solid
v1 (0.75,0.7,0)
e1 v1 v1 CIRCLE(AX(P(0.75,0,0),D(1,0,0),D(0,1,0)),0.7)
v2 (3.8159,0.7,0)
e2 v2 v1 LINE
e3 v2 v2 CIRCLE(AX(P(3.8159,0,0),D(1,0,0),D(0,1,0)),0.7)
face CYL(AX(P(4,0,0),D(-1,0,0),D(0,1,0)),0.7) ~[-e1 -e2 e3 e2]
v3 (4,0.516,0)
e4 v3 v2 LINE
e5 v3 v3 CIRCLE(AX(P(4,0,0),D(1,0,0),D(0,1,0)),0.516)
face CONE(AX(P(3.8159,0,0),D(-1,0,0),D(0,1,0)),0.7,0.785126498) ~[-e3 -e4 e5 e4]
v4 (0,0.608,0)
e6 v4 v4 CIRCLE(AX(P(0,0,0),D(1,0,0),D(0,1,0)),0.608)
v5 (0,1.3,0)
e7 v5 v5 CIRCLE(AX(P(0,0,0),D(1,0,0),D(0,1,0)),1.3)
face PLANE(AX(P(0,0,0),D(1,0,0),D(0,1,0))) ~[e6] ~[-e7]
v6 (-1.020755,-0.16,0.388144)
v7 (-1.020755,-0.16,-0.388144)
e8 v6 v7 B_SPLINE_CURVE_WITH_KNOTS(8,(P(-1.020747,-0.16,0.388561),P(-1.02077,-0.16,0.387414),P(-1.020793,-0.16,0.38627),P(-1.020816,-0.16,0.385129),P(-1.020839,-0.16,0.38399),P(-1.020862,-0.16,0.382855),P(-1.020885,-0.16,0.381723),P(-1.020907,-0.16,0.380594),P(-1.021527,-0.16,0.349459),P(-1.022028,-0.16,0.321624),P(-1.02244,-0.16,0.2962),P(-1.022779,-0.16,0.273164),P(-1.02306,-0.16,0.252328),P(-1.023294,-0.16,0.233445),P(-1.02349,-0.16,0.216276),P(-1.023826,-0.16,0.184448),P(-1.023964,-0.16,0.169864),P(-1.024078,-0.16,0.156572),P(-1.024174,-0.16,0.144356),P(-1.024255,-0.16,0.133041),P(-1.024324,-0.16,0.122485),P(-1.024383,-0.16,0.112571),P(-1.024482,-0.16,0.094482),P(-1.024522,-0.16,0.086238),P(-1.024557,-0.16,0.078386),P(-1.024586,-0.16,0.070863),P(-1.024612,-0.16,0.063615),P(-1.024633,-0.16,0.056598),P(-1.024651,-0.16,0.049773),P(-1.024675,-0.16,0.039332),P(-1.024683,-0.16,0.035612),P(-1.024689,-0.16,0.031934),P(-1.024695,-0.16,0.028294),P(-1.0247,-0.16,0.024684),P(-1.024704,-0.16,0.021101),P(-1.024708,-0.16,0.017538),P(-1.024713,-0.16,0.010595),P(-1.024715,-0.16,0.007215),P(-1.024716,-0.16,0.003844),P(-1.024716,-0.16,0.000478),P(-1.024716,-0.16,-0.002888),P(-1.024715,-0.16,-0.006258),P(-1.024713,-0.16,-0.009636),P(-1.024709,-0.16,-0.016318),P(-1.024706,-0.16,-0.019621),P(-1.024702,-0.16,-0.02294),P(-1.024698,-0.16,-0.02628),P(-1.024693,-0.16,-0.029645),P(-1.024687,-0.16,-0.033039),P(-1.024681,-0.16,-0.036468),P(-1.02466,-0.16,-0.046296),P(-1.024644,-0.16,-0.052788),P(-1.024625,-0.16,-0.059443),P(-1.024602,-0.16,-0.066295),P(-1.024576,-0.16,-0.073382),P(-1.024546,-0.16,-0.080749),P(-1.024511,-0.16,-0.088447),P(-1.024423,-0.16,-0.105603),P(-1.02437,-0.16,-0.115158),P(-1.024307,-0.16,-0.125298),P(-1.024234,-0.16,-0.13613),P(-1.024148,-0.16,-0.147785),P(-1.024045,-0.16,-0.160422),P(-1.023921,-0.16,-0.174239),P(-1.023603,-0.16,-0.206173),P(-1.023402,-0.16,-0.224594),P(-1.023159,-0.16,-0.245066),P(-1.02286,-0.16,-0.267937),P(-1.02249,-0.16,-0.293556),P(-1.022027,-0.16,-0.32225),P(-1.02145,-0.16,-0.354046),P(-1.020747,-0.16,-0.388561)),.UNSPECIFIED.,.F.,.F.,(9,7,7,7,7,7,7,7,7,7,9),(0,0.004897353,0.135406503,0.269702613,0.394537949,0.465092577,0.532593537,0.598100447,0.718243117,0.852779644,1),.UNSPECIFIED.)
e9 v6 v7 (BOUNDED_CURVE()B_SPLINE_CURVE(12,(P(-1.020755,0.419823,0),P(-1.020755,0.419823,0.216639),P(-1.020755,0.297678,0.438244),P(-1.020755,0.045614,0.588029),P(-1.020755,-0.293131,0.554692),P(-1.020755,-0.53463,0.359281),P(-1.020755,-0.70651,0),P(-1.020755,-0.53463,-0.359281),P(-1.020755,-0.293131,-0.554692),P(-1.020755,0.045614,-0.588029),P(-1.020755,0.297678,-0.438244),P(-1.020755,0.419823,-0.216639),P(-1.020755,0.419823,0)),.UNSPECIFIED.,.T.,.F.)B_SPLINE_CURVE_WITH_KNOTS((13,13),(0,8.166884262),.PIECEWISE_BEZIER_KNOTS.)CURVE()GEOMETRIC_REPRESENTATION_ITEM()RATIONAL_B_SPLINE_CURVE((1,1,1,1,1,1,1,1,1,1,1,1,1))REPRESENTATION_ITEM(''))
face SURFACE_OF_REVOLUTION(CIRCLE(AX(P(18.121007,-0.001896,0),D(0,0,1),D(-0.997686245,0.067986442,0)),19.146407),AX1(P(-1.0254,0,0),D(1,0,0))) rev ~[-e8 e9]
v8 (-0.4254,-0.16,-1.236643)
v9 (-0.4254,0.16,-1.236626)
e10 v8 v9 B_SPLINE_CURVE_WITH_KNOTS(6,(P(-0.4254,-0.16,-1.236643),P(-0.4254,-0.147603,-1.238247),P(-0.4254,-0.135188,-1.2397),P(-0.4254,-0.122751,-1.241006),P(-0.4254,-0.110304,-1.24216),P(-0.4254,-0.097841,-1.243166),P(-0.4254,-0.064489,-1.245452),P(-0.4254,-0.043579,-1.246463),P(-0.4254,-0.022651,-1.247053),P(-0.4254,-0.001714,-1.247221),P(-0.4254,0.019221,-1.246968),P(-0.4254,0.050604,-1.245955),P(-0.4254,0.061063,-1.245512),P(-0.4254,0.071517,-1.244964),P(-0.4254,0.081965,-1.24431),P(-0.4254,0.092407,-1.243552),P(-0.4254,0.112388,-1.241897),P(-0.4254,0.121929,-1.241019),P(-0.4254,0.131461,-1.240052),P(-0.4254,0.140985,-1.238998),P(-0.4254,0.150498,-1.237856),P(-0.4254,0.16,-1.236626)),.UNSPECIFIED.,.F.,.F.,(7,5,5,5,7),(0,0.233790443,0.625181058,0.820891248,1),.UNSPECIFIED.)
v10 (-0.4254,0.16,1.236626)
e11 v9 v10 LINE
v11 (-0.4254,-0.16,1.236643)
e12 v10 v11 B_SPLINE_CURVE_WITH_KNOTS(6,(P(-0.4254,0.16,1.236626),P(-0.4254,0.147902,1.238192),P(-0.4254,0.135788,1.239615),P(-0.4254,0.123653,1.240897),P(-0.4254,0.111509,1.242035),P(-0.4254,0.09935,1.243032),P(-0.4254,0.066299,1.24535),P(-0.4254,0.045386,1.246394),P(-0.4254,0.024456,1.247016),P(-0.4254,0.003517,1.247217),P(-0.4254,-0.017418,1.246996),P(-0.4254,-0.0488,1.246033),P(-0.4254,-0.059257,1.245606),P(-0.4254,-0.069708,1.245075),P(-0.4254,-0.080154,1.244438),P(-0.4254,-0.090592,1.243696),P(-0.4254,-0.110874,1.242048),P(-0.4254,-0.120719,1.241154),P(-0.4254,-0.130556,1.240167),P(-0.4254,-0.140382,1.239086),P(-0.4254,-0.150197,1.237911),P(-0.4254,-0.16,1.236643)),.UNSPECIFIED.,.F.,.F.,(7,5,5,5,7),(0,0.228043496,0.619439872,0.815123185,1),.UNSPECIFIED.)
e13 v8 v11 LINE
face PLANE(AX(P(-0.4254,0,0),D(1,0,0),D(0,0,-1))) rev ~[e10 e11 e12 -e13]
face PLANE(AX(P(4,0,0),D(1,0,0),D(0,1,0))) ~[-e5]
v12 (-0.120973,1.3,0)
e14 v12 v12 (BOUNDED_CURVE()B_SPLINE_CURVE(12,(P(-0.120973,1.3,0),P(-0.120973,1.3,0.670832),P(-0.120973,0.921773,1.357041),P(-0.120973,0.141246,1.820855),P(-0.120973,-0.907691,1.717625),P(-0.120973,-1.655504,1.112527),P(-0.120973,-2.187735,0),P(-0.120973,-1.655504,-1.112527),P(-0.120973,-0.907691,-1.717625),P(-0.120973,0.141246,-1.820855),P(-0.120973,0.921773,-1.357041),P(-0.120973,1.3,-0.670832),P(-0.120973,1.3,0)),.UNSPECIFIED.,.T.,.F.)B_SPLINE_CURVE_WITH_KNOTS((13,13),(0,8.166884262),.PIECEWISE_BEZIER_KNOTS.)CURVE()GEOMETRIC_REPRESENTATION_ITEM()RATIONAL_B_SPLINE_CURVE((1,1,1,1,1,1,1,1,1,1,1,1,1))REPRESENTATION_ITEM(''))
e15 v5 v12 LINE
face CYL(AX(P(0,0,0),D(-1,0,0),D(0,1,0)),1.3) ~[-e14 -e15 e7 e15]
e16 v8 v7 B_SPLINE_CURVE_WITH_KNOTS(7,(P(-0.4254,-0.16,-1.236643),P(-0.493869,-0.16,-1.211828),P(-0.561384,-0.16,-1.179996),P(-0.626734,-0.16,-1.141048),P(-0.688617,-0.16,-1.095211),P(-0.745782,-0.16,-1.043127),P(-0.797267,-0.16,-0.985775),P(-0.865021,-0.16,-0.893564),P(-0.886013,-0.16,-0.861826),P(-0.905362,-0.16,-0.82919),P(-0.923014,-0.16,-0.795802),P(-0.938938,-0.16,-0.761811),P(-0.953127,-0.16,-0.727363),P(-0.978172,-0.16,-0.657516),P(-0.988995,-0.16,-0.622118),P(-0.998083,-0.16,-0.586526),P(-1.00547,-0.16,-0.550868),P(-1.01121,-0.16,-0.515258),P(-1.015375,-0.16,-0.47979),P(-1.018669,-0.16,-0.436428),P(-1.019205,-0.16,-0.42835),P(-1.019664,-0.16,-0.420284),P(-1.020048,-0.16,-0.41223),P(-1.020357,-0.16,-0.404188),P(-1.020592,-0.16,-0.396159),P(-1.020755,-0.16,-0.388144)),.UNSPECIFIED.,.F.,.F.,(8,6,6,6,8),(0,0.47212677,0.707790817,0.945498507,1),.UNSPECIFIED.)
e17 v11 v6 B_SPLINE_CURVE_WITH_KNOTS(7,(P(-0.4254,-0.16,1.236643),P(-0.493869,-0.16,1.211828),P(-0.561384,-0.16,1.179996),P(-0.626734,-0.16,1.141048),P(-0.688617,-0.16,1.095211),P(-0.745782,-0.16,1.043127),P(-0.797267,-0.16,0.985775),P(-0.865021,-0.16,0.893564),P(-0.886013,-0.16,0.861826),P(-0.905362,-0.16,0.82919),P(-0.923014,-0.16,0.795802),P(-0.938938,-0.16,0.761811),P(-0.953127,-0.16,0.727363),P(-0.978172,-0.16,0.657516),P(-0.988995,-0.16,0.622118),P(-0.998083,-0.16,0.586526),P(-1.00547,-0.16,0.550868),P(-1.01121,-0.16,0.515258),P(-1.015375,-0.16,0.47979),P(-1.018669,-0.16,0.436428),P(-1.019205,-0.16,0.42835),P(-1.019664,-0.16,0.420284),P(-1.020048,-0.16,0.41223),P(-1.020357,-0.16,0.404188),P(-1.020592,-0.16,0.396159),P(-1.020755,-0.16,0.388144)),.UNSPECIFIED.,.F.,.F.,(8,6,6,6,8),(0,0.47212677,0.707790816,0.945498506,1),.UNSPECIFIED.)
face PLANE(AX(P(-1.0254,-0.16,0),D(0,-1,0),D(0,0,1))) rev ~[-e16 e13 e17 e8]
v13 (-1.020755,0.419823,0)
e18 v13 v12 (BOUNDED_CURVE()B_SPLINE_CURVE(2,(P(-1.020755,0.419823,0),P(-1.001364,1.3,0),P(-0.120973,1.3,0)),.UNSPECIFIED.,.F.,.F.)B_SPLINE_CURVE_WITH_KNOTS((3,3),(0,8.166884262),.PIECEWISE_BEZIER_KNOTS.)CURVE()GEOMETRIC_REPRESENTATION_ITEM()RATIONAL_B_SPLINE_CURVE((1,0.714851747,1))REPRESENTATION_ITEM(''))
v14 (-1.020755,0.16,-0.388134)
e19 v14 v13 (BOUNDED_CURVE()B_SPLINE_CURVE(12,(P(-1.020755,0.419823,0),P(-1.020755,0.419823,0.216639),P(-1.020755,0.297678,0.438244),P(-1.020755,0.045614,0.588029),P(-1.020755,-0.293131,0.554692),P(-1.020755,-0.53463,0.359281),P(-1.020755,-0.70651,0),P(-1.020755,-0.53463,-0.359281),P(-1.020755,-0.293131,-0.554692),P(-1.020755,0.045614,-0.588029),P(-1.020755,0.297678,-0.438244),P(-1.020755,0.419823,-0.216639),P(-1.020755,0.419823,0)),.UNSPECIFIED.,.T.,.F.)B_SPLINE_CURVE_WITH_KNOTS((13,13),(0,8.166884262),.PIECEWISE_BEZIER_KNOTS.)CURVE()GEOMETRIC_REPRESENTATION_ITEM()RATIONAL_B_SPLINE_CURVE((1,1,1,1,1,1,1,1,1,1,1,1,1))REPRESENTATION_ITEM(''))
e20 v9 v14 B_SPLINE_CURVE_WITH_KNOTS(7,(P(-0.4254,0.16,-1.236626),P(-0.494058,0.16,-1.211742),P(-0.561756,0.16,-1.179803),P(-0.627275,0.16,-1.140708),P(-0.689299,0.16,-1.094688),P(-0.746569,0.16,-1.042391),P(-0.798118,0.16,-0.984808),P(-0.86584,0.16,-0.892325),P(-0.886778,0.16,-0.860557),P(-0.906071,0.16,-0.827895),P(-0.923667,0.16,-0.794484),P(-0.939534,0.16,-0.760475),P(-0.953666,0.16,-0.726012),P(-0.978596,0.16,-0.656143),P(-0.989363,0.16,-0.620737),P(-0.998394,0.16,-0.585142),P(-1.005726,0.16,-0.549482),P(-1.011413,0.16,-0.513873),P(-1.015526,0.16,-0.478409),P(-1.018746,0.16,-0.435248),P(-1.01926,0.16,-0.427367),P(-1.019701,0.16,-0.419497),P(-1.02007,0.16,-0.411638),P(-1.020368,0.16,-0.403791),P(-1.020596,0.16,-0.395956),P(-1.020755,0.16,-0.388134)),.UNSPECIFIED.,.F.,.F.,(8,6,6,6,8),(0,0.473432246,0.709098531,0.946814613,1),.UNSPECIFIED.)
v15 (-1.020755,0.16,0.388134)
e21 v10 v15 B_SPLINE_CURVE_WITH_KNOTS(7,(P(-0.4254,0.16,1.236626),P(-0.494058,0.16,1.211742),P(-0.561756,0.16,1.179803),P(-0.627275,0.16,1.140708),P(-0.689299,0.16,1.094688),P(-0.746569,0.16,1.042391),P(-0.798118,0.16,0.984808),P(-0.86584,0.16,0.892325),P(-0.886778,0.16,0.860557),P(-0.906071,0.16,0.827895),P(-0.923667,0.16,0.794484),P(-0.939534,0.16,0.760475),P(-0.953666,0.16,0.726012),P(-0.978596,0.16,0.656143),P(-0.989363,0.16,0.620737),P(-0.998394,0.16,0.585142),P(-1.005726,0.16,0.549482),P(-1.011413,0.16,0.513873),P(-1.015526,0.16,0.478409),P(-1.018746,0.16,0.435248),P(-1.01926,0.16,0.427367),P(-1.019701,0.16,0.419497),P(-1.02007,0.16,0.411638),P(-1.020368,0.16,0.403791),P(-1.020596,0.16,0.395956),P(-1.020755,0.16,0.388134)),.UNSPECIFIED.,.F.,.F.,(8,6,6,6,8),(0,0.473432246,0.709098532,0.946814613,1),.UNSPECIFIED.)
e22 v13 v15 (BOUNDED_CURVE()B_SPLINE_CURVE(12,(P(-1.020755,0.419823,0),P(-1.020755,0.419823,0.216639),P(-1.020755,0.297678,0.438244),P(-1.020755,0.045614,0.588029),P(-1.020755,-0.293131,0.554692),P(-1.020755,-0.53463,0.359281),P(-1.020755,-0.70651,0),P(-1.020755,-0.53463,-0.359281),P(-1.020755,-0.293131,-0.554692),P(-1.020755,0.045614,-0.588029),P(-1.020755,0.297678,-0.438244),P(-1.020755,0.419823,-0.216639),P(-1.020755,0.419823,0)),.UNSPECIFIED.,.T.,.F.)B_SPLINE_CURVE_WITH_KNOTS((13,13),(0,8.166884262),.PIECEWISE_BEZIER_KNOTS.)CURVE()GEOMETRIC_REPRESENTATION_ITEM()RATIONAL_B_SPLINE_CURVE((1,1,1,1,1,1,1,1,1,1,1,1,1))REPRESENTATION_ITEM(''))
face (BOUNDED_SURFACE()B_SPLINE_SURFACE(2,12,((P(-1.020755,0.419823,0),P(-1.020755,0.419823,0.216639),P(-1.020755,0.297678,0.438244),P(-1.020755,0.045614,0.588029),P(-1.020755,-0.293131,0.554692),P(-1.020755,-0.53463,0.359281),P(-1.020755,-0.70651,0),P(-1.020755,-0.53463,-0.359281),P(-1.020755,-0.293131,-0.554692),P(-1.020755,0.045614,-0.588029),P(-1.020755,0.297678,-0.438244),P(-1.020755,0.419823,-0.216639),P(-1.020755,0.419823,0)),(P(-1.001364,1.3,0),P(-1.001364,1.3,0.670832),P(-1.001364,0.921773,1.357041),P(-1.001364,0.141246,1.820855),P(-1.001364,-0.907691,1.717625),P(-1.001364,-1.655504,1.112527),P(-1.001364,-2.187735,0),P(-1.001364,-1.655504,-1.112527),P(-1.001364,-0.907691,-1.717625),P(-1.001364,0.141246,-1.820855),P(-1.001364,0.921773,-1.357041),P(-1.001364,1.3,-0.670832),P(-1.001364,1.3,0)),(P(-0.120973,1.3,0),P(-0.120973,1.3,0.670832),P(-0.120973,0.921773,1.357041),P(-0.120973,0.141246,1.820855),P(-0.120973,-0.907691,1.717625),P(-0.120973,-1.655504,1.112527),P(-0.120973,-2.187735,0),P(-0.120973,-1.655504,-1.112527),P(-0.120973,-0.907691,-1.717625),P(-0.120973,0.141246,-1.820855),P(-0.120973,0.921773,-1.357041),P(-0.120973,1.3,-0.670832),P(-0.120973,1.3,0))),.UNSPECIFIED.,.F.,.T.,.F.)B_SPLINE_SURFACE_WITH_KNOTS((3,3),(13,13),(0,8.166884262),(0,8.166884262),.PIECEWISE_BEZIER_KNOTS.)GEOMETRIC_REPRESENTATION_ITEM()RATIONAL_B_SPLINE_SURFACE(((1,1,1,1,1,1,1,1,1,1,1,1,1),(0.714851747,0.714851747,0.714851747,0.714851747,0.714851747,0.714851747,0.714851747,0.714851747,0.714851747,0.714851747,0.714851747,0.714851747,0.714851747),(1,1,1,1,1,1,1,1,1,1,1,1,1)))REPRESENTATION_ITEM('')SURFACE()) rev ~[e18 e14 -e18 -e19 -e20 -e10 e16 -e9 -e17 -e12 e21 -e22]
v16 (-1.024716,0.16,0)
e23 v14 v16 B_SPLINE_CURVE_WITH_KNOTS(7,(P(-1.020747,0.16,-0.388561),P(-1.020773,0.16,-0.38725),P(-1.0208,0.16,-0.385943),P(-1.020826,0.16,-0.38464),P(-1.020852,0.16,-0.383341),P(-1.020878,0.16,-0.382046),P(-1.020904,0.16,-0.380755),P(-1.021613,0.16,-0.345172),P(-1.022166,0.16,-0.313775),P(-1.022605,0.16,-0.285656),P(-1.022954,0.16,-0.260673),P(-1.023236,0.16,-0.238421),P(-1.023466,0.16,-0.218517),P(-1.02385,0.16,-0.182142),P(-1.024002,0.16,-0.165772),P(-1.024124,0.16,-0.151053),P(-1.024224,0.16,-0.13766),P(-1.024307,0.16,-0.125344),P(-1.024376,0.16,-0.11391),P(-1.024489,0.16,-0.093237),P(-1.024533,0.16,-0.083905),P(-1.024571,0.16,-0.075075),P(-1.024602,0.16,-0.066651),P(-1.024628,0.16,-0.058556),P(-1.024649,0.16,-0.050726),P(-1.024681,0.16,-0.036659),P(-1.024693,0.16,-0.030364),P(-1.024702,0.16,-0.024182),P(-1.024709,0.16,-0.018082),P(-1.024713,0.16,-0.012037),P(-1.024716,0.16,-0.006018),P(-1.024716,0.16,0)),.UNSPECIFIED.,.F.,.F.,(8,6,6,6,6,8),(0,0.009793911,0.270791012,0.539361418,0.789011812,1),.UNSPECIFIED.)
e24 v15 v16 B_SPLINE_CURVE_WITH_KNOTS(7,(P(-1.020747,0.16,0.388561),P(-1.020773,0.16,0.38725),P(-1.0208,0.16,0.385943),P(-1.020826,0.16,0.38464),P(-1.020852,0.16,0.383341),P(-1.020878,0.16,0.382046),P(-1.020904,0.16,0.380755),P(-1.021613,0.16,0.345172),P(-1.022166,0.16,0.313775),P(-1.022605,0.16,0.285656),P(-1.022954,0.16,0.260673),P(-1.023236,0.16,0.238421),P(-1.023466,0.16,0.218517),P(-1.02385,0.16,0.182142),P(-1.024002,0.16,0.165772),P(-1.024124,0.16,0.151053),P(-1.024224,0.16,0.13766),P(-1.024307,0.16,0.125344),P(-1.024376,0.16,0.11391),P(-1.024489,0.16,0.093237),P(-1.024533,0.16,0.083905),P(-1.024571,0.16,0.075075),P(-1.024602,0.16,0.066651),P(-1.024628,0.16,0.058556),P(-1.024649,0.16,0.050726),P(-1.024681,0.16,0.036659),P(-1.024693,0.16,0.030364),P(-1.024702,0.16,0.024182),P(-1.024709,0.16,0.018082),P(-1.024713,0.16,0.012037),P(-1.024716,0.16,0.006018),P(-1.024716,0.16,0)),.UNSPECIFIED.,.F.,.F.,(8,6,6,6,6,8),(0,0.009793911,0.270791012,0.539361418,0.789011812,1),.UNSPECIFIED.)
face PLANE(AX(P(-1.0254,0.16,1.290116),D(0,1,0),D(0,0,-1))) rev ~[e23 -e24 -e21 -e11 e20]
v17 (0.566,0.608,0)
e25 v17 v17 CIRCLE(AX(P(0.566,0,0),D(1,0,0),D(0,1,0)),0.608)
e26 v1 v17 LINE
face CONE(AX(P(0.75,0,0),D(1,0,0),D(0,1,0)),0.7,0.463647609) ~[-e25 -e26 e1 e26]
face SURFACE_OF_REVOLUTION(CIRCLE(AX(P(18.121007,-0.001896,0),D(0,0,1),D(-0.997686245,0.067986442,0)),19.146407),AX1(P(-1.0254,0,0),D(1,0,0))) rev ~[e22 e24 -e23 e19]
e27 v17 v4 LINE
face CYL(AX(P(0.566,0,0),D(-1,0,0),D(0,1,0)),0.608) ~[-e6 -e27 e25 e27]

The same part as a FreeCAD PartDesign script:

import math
import FreeCAD as App
import Part
import Sketcher


def edges_at(feature, points):
    """Names of the edges that pass closest to the given points."""
    edges = feature.Shape.Edges
    near = lambda p: min(range(len(edges)), key=lambda i: edges[i].distToShape(Part.Vertex(*p))[0])
    return sorted({f"Edge{near(p) + 1}" for p in points})

doc = App.newDocument("Part")
body = doc.addObject("PartDesign::Body", "Body")

# Sketch on XY plane
sketch1 = body.newObject("Sketcher::SketchObject", "Sketch")
sketch1.AttachmentSupport = (doc.getObject("XY_Plane"), [""])
sketch1.MapMode = "FlatFace"
sketch1.addGeometry([
    Part.ArcOfCircle(Part.Circle(App.Vector(18.12, 0, 0), App.Vector(0, 0, 1), 19.15), math.radians(176.1), math.radians(179.99)),  # 0
    Part.LineSegment(App.Vector(-1.03, 0, 0), App.Vector(4, 0, 0)),  # 1
    Part.LineSegment(App.Vector(4, 0, 0), App.Vector(4, 0.7, 0)),  # 2
    Part.LineSegment(App.Vector(4, 0.7, 0), App.Vector(0.75, 0.7, 0)),  # 3
    Part.LineSegment(App.Vector(0.75, 0.7, 0), App.Vector(0.57, 0.61, 0)),  # 4
    Part.LineSegment(App.Vector(0.57, 0.61, 0), App.Vector(0, 0.61, 0)),  # 5
    Part.LineSegment(App.Vector(0, 0.61, 0), App.Vector(0, 1.3, 0)),  # 6
    Part.LineSegment(App.Vector(0, 1.3, 0), App.Vector(-0.98, 1.3, 0)),  # 7
], False)
sketch1.addConstraint([
    Sketcher.Constraint("Coincident", 0, 2, 1, 1),
    Sketcher.Constraint("Coincident", 1, 2, 2, 1),
    Sketcher.Constraint("Coincident", 2, 2, 3, 1),
    Sketcher.Constraint("Coincident", 3, 2, 4, 1),
    Sketcher.Constraint("Coincident", 4, 2, 5, 1),
    Sketcher.Constraint("Coincident", 5, 2, 6, 1),
    Sketcher.Constraint("Coincident", 6, 2, 7, 1),
    Sketcher.Constraint("Coincident", 7, 2, 0, 1),
    Sketcher.Constraint("Horizontal", 1),
    Sketcher.Constraint("Vertical", 2),
    Sketcher.Constraint("Horizontal", 3),
    Sketcher.Constraint("Horizontal", 5),
    Sketcher.Constraint("Vertical", 6),
    Sketcher.Constraint("Horizontal", 7),
    Sketcher.Constraint("PointOnObject", 0, 2, -1),
    Sketcher.Constraint("PointOnObject", 5, 2, -2),
    Sketcher.Constraint("DistanceX", -1, 1, 1, 2, 4.0),
    Sketcher.Constraint("DistanceX", 3, 2, 3, 1, 3.25),
    Sketcher.Constraint("DistanceY", 2, 1, 2, 2, 0.7),
    Sketcher.Constraint("DistanceX", 4, 2, 3, 2, 0.184),
    Sketcher.Constraint("DistanceX", 0, 2, -1, 1, 1.0254),
    Sketcher.Constraint("DistanceY", -1, 1, 6, 2, 1.3),
    Sketcher.Constraint("Radius", 0, 19.1464),
    Sketcher.Constraint("DistanceX", 7, 2, 7, 1, 0.981),
    Sketcher.Constraint("DistanceY", 6, 1, 6, 2, 0.692),
])
revolution = body.newObject("PartDesign::Revolution", "Revolution")
revolution.Profile = sketch1
revolution.ReferenceAxis = (sketch1, ["H_Axis"])
revolution.Angle = 360
doc.recompute()

fillet = body.newObject("PartDesign::Fillet", "Fillet")
fillet.Base = (revolution, edges_at(revolution, [(-0.981, -1.3, 0)]))
fillet.Radius = 0.9

# Sketch on YZ plane
sketch2 = body.newObject("Sketcher::SketchObject", "Sketch001")
sketch2.AttachmentSupport = (doc.getObject("YZ_Plane"), [""])
sketch2.MapMode = "FlatFace"
sketch2.AttachmentOffset = App.Placement(App.Vector(0, 0, -1.0254), App.Rotation())
sketch2.addGeometry([
    Part.LineSegment(App.Vector(-0.16, -1.3, 0), App.Vector(0.16, -1.3, 0)),
    Part.LineSegment(App.Vector(0.16, -1.3, 0), App.Vector(0.16, 1.3, 0)),
    Part.LineSegment(App.Vector(0.16, 1.3, 0), App.Vector(-0.16, 1.3, 0)),
    Part.LineSegment(App.Vector(-0.16, 1.3, 0), App.Vector(-0.16, -1.3, 0)),
], False)
sketch2.addConstraint([
    Sketcher.Constraint("Coincident", 0, 2, 1, 1),
    Sketcher.Constraint("Coincident", 1, 2, 2, 1),
    Sketcher.Constraint("Coincident", 2, 2, 3, 1),
    Sketcher.Constraint("Coincident", 3, 2, 0, 1),
    Sketcher.Constraint("Horizontal", 0),
    Sketcher.Constraint("Vertical", 1),
    Sketcher.Constraint("Horizontal", 2),
    Sketcher.Constraint("Vertical", 3),
    Sketcher.Constraint("Symmetric", 0, 2, 2, 2, -1, 1),
    Sketcher.Constraint("DistanceX", 0, 1, 0, 2, 0.32),
    Sketcher.Constraint("DistanceY", 1, 1, 1, 2, 2.6),
])
pocket1 = body.newObject("PartDesign::Pocket", "Pocket")
pocket1.Profile = sketch2
pocket1.Length = 0.6
pocket1.Reversed = True
doc.recompute()

chamfer = body.newObject("PartDesign::Chamfer", "Chamfer")
chamfer.Base = (pocket1, edges_at(pocket1, [(4, -0.7, 0)]))
chamfer.ChamferType = "Two distances"
chamfer.Size = 0.184
chamfer.Size2 = 0.1841

doc.recompute()
